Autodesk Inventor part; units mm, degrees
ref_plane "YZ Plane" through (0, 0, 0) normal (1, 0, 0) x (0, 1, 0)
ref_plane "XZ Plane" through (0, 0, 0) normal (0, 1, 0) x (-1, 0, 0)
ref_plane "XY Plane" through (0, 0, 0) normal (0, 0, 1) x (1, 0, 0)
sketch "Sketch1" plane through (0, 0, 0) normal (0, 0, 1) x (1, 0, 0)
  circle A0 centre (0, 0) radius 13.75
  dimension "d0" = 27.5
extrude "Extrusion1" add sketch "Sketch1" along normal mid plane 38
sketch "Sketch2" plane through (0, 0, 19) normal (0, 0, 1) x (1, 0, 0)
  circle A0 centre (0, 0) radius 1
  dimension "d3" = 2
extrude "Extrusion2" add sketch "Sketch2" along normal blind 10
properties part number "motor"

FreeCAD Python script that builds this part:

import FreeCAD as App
import Part
import Sketcher

V = App.Vector
Q = App.Units.Quantity

doc = App.newDocument("Part")
params = doc.addObject("Spreadsheet::Sheet", "Params")
for row, (alias, value) in enumerate([
    ("sketch1_diameter", "27.5 mm"),
    ("pad1_length", "38 mm"),
    ("sketch2_diameter", "2 mm"),
    ("pad2_length", "10 mm"),
], start=1):
    params.set(f"A{row}", alias)
    params.set(f"B{row}", "=" + value)
    params.setAlias(f"B{row}", alias)

body = doc.addObject("PartDesign::Body", "Body")

sketch1 = doc.addObject("Sketcher::SketchObject", "Sketch")
body.addObject(sketch1)
sketch1.AttachmentSupport = (doc.XY_Plane, [""])
sketch1.MapMode = "FlatFace"
sketch1.addGeometry(Part.Circle(V(0, 0, 0), V(0, 0, 1), 14), False)
sketch1.addConstraint(Sketcher.Constraint("Coincident", 0, 3, -1, 1))
sketch1.addConstraint(Sketcher.Constraint("Diameter", 0, Q("27.5 mm")))
sketch1.setExpression("Constraints[1]", "Params.sketch1_diameter")
pad1 = doc.addObject("PartDesign::Pad", "Pad")
body.addObject(pad1)
pad1.Profile = sketch1
pad1.setExpression("Length", "Params.pad1_length")
pad1.Midplane = True

sketch2 = doc.addObject("Sketcher::SketchObject", "Sketch001")
body.addObject(sketch2)
sketch2.AttachmentSupport = (doc.XY_Plane, [""])
sketch2.MapMode = "FlatFace"
sketch2.AttachmentOffset = App.Placement(V(0, 0, 19), App.Rotation())
sketch2.addGeometry(Part.Circle(V(0, 0, 0), V(0, 0, 1), 1), False)
sketch2.addConstraint(Sketcher.Constraint("Coincident", 0, 3, -1, 1))
sketch2.addConstraint(Sketcher.Constraint("Diameter", 0, Q("2 mm")))
sketch2.setExpression("Constraints[1]", "Params.sketch2_diameter")
pad2 = doc.addObject("PartDesign::Pad", "Pad001")
body.addObject(pad2)
pad2.Profile = sketch2
pad2.setExpression("Length", "Params.pad2_length")

doc.recompute()
